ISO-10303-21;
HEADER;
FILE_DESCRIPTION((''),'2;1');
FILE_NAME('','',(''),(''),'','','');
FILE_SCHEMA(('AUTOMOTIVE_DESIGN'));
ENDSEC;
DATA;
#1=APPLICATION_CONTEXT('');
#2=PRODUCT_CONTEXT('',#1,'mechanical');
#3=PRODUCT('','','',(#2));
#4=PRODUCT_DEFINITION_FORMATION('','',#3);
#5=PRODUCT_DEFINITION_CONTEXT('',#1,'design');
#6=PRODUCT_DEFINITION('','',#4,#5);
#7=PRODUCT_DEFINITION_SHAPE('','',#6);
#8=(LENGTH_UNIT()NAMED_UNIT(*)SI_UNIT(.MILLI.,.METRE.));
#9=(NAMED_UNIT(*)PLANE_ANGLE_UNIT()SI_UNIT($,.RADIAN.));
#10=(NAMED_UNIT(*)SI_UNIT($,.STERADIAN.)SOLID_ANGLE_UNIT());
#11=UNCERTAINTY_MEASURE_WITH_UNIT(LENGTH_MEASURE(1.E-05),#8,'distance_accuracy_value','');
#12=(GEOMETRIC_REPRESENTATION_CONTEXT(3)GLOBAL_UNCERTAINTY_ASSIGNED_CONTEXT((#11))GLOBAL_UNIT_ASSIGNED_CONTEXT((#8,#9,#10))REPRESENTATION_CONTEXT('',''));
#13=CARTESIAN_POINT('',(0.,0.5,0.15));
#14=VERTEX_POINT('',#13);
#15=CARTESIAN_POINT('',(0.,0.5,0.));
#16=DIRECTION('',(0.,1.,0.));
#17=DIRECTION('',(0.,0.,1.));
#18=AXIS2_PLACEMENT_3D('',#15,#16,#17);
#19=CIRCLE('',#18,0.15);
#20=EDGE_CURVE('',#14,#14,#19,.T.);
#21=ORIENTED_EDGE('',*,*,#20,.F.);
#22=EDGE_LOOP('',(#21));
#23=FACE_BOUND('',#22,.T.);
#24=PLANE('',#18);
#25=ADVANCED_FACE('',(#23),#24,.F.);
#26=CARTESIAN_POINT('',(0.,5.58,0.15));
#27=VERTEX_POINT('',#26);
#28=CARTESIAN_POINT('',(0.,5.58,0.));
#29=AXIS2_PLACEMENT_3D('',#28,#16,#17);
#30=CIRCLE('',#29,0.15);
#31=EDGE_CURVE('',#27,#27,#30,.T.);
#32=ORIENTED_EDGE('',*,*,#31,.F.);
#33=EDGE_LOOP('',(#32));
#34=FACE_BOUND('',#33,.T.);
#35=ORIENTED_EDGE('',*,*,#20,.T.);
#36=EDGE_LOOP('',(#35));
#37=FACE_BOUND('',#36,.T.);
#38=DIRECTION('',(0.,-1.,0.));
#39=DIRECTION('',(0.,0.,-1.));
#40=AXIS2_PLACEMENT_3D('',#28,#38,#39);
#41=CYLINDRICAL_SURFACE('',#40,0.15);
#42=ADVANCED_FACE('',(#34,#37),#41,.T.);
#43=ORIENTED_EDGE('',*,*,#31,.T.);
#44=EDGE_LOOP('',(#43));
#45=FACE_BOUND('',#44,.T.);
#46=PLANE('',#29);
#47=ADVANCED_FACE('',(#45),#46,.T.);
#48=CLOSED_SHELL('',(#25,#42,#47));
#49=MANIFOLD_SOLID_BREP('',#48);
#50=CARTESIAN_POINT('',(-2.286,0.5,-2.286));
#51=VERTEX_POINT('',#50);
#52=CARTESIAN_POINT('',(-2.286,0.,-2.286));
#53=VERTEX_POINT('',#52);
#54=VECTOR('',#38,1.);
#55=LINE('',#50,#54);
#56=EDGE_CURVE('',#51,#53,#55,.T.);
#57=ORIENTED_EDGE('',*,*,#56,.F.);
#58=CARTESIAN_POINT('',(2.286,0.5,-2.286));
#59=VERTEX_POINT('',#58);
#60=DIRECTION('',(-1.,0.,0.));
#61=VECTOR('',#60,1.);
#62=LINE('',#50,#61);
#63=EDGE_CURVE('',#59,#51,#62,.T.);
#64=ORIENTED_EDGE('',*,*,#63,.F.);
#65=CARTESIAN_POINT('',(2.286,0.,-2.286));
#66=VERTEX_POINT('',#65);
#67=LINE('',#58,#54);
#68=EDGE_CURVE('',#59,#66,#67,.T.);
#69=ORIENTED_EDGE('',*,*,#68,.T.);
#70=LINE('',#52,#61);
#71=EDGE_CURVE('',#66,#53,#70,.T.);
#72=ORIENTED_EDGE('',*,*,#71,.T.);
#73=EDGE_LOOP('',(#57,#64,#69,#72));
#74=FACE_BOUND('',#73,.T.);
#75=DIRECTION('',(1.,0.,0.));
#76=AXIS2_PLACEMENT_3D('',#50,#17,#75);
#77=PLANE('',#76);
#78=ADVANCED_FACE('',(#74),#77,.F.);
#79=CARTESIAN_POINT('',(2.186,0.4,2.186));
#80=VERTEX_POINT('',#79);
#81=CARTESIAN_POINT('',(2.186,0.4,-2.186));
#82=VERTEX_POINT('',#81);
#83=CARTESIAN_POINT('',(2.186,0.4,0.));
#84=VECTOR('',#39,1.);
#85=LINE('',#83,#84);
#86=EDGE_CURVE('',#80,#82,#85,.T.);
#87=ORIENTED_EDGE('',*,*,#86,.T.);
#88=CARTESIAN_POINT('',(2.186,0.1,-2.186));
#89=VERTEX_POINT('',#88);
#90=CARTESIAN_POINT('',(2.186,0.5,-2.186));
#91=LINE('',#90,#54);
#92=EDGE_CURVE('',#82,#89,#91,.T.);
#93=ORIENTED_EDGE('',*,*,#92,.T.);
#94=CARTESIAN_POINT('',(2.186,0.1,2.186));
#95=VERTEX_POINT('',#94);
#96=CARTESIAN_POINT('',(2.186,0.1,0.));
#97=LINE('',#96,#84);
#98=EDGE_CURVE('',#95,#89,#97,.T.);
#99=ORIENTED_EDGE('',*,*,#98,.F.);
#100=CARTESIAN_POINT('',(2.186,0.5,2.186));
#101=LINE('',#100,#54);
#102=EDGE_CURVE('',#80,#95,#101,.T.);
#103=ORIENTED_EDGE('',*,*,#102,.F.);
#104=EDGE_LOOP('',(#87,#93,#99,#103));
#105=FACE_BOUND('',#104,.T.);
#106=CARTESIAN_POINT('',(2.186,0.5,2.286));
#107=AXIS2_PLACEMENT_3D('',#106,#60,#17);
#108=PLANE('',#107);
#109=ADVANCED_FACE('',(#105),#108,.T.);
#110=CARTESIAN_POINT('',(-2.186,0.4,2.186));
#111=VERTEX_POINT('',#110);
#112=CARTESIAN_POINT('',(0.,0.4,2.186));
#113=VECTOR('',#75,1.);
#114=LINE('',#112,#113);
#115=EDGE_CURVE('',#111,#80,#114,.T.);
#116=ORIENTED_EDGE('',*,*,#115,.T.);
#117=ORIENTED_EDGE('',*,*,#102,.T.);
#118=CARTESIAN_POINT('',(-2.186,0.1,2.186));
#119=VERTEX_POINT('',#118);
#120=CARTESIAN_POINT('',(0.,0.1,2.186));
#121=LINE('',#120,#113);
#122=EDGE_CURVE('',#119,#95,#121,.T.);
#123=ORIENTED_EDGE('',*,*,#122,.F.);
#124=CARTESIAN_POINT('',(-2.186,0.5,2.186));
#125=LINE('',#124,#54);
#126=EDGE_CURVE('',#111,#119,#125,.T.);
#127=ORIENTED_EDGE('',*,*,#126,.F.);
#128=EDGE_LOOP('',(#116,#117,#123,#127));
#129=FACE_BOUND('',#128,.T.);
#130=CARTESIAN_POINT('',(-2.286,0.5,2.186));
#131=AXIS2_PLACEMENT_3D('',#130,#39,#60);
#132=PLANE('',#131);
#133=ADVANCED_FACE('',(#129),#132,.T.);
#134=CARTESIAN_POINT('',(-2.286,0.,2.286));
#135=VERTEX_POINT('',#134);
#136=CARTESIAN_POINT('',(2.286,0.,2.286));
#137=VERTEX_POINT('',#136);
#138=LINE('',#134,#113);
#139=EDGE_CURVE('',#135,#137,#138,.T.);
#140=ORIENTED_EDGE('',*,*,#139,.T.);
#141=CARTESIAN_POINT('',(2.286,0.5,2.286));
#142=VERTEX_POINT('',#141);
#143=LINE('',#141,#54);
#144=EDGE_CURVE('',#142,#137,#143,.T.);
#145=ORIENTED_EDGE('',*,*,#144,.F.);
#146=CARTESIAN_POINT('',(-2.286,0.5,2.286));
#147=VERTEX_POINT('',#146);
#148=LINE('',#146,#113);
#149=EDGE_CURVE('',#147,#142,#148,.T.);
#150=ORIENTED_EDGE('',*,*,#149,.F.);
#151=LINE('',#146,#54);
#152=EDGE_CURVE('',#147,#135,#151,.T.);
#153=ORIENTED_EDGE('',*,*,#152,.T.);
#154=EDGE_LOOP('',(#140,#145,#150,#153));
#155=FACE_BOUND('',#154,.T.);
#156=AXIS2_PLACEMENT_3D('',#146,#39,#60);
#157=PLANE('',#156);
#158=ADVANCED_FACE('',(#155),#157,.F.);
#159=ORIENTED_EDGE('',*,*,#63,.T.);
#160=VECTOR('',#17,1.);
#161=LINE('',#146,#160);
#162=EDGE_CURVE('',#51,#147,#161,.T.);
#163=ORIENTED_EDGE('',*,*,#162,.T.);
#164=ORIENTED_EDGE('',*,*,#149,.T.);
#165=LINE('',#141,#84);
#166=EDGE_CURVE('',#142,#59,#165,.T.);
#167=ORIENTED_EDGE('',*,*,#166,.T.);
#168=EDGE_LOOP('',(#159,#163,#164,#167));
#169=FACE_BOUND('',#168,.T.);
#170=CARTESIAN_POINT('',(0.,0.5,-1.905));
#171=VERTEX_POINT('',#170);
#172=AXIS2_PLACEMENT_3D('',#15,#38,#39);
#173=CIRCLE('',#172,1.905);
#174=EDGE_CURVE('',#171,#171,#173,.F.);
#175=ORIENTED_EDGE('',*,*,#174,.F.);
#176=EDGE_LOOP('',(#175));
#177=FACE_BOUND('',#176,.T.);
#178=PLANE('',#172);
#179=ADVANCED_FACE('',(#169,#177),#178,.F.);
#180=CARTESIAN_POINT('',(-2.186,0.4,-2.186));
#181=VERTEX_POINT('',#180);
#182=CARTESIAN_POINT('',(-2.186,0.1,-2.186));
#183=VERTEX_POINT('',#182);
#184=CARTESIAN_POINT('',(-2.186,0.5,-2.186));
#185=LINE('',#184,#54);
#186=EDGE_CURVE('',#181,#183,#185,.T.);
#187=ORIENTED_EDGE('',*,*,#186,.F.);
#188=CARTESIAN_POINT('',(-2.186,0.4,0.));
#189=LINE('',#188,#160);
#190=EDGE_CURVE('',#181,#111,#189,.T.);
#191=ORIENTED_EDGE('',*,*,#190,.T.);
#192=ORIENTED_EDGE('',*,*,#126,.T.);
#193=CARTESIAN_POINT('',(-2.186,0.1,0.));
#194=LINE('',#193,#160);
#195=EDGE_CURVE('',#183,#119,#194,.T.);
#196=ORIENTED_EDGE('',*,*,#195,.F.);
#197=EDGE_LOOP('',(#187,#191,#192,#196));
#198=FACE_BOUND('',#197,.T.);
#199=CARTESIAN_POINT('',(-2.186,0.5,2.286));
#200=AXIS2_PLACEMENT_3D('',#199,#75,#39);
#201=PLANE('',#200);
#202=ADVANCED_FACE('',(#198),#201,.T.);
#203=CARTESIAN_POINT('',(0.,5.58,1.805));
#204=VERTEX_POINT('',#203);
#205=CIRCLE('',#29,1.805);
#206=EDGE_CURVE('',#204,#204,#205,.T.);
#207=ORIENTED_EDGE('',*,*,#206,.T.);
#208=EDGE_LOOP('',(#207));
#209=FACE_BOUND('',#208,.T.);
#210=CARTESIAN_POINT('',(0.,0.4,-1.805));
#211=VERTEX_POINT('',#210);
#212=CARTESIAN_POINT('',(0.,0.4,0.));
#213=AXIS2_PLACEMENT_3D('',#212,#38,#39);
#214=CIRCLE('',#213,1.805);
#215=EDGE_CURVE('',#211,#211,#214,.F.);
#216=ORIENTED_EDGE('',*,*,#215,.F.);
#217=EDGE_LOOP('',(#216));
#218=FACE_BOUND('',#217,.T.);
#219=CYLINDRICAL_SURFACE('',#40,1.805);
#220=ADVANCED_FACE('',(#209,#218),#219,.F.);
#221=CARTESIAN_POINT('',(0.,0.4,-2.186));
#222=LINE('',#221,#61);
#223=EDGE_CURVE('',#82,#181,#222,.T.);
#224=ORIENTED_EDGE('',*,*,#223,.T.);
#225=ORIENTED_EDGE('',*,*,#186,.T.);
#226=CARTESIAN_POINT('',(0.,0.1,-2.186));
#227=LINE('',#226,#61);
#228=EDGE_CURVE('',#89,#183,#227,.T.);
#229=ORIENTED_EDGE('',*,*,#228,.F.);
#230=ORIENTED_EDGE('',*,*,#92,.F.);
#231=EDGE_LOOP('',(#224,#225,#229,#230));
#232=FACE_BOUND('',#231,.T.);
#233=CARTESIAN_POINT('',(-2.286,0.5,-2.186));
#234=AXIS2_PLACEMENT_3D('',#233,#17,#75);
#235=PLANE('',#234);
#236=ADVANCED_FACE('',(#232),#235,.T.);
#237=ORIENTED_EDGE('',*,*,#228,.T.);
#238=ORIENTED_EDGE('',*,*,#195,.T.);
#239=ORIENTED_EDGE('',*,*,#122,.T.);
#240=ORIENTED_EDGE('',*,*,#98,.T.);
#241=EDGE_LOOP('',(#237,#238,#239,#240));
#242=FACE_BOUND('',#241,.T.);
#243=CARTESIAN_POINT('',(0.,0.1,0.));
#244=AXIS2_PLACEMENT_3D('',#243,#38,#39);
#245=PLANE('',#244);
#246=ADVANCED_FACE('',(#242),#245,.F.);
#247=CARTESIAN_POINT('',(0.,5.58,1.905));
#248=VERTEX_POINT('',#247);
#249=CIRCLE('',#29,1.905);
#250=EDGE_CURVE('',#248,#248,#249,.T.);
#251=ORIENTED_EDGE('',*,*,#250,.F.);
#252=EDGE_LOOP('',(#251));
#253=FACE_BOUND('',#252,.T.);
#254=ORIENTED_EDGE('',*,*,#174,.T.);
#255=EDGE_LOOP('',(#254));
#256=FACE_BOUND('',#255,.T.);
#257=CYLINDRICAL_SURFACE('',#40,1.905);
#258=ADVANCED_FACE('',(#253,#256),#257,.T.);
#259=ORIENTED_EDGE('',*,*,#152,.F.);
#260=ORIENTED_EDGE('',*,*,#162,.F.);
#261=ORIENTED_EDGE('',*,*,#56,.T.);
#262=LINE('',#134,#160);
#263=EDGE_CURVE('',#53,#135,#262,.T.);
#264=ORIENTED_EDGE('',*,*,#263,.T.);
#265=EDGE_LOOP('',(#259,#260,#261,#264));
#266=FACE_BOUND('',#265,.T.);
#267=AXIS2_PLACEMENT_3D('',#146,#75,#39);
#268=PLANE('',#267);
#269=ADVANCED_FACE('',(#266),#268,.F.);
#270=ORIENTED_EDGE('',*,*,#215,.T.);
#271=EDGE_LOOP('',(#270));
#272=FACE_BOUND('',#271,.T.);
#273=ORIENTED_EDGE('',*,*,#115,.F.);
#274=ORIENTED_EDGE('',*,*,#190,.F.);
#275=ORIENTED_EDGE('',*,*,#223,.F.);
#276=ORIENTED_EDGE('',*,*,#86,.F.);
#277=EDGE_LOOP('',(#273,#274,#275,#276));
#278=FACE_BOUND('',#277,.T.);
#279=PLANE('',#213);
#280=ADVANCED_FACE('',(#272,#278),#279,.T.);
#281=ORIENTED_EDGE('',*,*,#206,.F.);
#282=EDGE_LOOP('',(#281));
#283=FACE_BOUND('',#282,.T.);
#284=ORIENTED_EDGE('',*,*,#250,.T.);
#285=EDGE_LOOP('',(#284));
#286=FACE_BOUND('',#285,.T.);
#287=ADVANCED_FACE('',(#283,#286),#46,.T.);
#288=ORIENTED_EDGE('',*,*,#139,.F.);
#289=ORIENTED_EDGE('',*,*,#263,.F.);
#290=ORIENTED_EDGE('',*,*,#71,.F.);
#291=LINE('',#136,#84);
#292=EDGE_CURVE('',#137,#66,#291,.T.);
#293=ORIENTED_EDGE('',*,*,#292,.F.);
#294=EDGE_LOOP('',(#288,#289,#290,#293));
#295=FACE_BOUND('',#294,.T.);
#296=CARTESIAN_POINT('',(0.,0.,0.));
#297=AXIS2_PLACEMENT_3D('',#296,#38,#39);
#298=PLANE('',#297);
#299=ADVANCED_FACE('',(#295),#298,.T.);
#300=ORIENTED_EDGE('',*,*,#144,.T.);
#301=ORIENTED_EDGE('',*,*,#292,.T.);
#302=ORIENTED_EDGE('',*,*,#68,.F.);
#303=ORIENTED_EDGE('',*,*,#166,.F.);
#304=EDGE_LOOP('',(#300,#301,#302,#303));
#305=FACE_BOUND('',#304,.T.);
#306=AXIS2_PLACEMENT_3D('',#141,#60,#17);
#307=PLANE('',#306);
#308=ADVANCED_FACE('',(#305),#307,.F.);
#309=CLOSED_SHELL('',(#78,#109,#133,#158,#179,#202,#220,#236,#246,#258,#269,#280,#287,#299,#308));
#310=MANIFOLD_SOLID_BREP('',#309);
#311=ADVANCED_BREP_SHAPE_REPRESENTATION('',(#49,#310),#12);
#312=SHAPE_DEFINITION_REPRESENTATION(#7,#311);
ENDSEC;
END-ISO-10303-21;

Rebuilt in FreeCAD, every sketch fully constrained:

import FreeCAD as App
import Part
import Sketcher
from FreeCAD import Vector
Q = App.Units.Quantity


def faces_at(feature, points):
    """Names of the faces that lie closest to the given points."""
    faces = feature.Shape.Faces
    near = lambda p: min(range(len(faces)), key=lambda i: faces[i].distToShape(Part.Vertex(*p))[0])
    return sorted({f"Face{near(p) + 1}" for p in points})


def add_polygon(sketch, points):
    """Adds a closed chain of lines whose ends are joined by coincident constraints."""
    first, n = sketch.GeometryCount, len(points)
    for a, b in zip(points, points[1:] + points[:1]):
        sketch.addGeometry(Part.LineSegment(App.Vector(*a, 0), App.Vector(*b, 0)), False)
    for i in range(n):
        sketch.addConstraint(Sketcher.Constraint("Coincident", first + i, 2, first + (i + 1) % n, 1))

doc = App.newDocument("Part")
body = doc.addObject("PartDesign::Body", "Body")

sketch1 = body.newObject("Sketcher::SketchObject", "Sketch")
sketch1.AttachmentSupport = (doc.getObject("XZ_Plane"), [""])
sketch1.MapMode = "FlatFace"
add_polygon(sketch1, [(-2.3, -2.3), (-2.3, 2.3), (2.3, 2.3), (2.3, -2.3)])
sketch1.addConstraint([
    Sketcher.Constraint("Vertical", 0),
    Sketcher.Constraint("Horizontal", 1),
    Sketcher.Constraint("Vertical", 2),
    Sketcher.Constraint("Horizontal", 3),
    Sketcher.Constraint("Symmetric", 0, 2, 2, 2, -1, 1),
    Sketcher.Constraint("Equal", 3, 0),
    Sketcher.Constraint("DistanceX", 1, 1, 1, 2, Q("4.572 mm")),
])
pad1 = body.newObject("PartDesign::Pad", "Pad")
pad1.Profile = sketch1
pad1.Length = 0.5
pad1.Reversed = True

sketch2 = body.newObject("Sketcher::SketchObject", "Sketch001")
sketch2.AttachmentSupport = (doc.getObject("XZ_Plane"), [""])
sketch2.MapMode = "FlatFace"
sketch2.AttachmentOffset = App.Placement(Vector(0, 0, -0.5), App.Rotation())
sketch2.addGeometry(Part.Circle(Vector(0, 0, 0), Vector(0, 0, 1), 1.9), False)
sketch2.addConstraint([
    Sketcher.Constraint("Coincident", 0, 3, -1, 1),
    Sketcher.Constraint("Diameter", 0, Q("3.81 mm")),
])
pad2 = body.newObject("PartDesign::Pad", "Pad001")
pad2.Profile = sketch2
pad2.Length = 5.08
pad2.Reversed = True
doc.recompute()

thickness = body.newObject("PartDesign::Thickness", "Thickness")
thickness.Base = (pad2, faces_at(pad2, [(0, 5.58, 0)]))
thickness.Value = 0.1
thickness.Reversed = True
thickness.Join = "Intersection"
body2 = doc.addObject("PartDesign::Body", "Body001")

sketch3 = body2.newObject("Sketcher::SketchObject", "Sketch002")
sketch3.AttachmentSupport = (doc.getObject("XZ_Plane001"), [""])
sketch3.MapMode = "FlatFace"
sketch3.AttachmentOffset = App.Placement(Vector(0, 0, -0.5), App.Rotation())
sketch3.addGeometry(Part.Circle(Vector(0, 0, 0), Vector(0, 0, 1), 0.15), False)
sketch3.addConstraint([
    Sketcher.Constraint("Coincident", 0, 3, -1, 1),
    Sketcher.Constraint("Diameter", 0, Q("0.3 mm")),
])
pad3 = body2.newObject("PartDesign::Pad", "Pad002")
pad3.Profile = sketch3
pad3.Length = 5.08
pad3.Reversed = True

doc.recompute()
